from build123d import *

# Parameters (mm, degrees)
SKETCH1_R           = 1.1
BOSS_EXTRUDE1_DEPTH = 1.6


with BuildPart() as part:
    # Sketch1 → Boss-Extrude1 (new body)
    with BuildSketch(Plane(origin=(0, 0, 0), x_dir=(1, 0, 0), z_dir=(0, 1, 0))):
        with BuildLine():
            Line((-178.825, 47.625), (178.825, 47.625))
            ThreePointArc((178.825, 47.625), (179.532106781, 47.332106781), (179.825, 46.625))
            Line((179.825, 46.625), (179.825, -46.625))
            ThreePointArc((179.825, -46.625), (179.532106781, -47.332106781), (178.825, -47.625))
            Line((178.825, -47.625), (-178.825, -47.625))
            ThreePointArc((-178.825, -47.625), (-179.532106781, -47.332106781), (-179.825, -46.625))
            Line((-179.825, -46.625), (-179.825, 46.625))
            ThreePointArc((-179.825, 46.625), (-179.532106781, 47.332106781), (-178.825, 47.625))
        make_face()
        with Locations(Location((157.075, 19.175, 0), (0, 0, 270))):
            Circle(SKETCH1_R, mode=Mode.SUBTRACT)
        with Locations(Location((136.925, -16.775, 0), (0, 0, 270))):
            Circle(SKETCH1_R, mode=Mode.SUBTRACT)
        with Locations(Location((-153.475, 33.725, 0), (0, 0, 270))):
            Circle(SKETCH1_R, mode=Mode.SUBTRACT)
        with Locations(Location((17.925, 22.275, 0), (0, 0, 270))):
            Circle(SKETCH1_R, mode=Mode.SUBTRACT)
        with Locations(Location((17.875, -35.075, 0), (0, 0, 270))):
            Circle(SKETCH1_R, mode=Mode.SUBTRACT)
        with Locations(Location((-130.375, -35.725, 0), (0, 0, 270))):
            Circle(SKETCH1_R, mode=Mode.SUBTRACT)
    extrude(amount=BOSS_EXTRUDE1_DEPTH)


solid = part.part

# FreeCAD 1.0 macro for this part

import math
import FreeCAD as App
import Part
import Sketcher

V = App.Vector
Q = App.Units.Quantity

doc = App.newDocument("Part")
body = doc.addObject("PartDesign::Body", "Body")

# Sketch on XZ plane
sketch1 = doc.addObject("Sketcher::SketchObject", "Sketch")
body.addObject(sketch1)
sketch1.AttachmentSupport = (doc.XZ_Plane, [""])
sketch1.MapMode = "FlatFace"
sketch1.addGeometry([
    Part.LineSegment(V(178.8, -47.6, 0), V(-178.8, -47.6, 0)),  # 0
    Part.ArcOfCircle(Part.Circle(V(-178.8, -46.6, 0), V(0, 0, 1), 1), math.radians(-180), math.radians(-90)),  # 1
    Part.LineSegment(V(-179.8, -46.6, 0), V(-179.8, 46.6, 0)),  # 2
    Part.ArcOfCircle(Part.Circle(V(-178.8, 46.6, 0), V(0, 0, 1), 1), math.radians(90), math.radians(180)),  # 3
    Part.LineSegment(V(-178.8, 47.6, 0), V(178.8, 47.6, 0)),  # 4
    Part.ArcOfCircle(Part.Circle(V(178.8, 46.6, 0), V(0, 0, 1), 1), math.radians(0), math.radians(90)),  # 5
    Part.LineSegment(V(179.8, 46.6, 0), V(179.8, -46.6, 0)),  # 6
    Part.ArcOfCircle(Part.Circle(V(178.8, -46.6, 0), V(0, 0, 1), 1), math.radians(-90), math.radians(0)),  # 7
    Part.Circle(V(17.9, 35.1, 0), V(0, 0, 1), 1.1),  # 8
    Part.Circle(V(136.9, 16.8, 0), V(0, 0, 1), 1.1),  # 9
    Part.Circle(V(-130.4, 35.7, 0), V(0, 0, 1), 1.1),  # 10
    Part.Circle(V(157.1, -19.2, 0), V(0, 0, 1), 1.1),  # 11
    Part.Circle(V(17.9, -22.3, 0), V(0, 0, 1), 1.1),  # 12
    Part.Circle(V(-153.5, -33.7, 0), V(0, 0, 1), 1.1),  # 13
], False)
sketch1.addConstraint([
    Sketcher.Constraint("Tangent", 0, 2, 1, 2),
    Sketcher.Constraint("Tangent", 1, 1, 2, 1),
    Sketcher.Constraint("Tangent", 2, 2, 3, 2),
    Sketcher.Constraint("Tangent", 3, 1, 4, 1),
    Sketcher.Constraint("Tangent", 4, 2, 5, 2),
    Sketcher.Constraint("Tangent", 5, 1, 6, 1),
    Sketcher.Constraint("Tangent", 6, 2, 7, 2),
    Sketcher.Constraint("Tangent", 7, 1, 0, 1),
    Sketcher.Constraint("Horizontal", 0),
    Sketcher.Constraint("Vertical", 2),
    Sketcher.Constraint("Horizontal", 4),
    Sketcher.Constraint("Vertical", 6),
    Sketcher.Constraint("Equal", 1, 3),
    Sketcher.Constraint("Equal", 3, 5),
    Sketcher.Constraint("Equal", 5, 7),
    Sketcher.Constraint("Equal", 8, 9),
    Sketcher.Constraint("Equal", 9, 10),
    Sketcher.Constraint("Equal", 10, 11),
    Sketcher.Constraint("Equal", 11, 12),
    Sketcher.Constraint("Equal", 12, 13),
    Sketcher.Constraint("Symmetric", 1, 3, 5, 3, -1, 1),
    Sketcher.Constraint("Radius", 1, Q("1 mm")),
    Sketcher.Constraint("Diameter", 8, Q("2.2 mm")),
    Sketcher.Constraint("DistanceX", 12, 3, 9, 3, Q("119 mm")),
    Sketcher.Constraint("DistanceY", 12, 3, 10, 3, Q("58 mm")),
    Sketcher.Constraint("DistanceX", 0, 2, 0, 1, Q("357.65 mm")),
    Sketcher.Constraint("DistanceY", 2, 1, 2, 2, Q("93.25 mm")),
    Sketcher.Constraint("DistanceY", 7, 3, 8, 3, Q("81.7 mm")),
    Sketcher.Constraint("DistanceX", 3, 3, 8, 3, Q("196.7 mm")),
    Sketcher.Constraint("DistanceX", 9, 3, 5, 3, Q("41.9 mm")),
    Sketcher.Constraint("DistanceY", 7, 3, 9, 3, Q("63.4 mm")),
    Sketcher.Constraint("DistanceY", 10, 3, 3, 3, Q("10.9 mm")),
    Sketcher.Constraint("DistanceX", 10, 3, 9, 3, Q("267.3 mm")),
    Sketcher.Constraint("DistanceY", 11, 3, 5, 3, Q("65.8 mm")),
    Sketcher.Constraint("DistanceX", 8, 3, 11, 3, Q("139.2 mm")),
    Sketcher.Constraint("DistanceY", 1, 3, 13, 3, Q("12.9 mm")),
    Sketcher.Constraint("DistanceX", 13, 3, 10, 3, Q("23.1 mm")),
])
pad1 = doc.addObject("PartDesign::Pad", "Pad")
body.addObject(pad1)
pad1.Profile = sketch1
pad1.Length = 1.6
pad1.Reversed = True

doc.recompute()
